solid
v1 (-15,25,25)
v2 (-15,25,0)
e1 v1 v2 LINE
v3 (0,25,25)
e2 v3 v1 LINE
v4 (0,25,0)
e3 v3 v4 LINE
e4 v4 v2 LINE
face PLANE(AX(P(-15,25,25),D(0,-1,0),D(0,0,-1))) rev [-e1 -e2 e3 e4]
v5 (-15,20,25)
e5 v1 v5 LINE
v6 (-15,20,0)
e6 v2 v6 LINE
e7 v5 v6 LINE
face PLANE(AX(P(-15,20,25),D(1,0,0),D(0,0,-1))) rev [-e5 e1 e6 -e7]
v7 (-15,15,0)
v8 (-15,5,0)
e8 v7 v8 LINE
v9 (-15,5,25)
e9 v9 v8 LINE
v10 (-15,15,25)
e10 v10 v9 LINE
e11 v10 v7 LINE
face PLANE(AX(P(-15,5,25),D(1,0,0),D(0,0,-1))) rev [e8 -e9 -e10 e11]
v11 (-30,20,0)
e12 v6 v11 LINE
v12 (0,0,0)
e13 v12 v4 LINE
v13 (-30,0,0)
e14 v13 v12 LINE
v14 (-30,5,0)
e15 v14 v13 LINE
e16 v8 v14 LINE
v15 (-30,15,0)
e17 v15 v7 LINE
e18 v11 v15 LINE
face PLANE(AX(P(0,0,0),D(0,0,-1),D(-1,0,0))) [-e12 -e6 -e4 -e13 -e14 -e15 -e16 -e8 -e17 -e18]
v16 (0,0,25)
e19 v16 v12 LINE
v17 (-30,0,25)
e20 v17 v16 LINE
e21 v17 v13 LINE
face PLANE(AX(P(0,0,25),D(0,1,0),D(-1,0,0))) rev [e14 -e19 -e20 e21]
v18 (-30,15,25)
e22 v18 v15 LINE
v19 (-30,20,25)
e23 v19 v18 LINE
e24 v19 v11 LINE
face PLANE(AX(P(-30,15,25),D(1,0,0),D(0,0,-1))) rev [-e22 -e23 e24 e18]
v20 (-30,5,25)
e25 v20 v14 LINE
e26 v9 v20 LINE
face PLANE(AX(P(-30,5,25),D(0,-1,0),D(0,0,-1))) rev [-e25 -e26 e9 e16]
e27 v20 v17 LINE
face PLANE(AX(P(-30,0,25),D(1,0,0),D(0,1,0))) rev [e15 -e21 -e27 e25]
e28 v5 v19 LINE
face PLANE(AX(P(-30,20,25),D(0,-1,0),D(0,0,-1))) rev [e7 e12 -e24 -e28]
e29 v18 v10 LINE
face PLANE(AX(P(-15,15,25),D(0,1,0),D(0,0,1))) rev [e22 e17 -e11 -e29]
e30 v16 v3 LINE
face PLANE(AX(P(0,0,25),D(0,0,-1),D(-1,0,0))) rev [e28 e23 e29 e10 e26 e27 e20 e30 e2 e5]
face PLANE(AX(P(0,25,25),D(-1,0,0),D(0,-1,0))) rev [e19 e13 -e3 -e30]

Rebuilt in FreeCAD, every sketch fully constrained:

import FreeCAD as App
import Part
import Sketcher

V = App.Vector
Q = App.Units.Quantity

doc = App.newDocument("Part")
body = doc.addObject("PartDesign::Body", "Body")

# Sketch on XY plane
sketch1 = doc.addObject("Sketcher::SketchObject", "Sketch")
body.addObject(sketch1)
sketch1.AttachmentSupport = (doc.XY_Plane, [""])
sketch1.MapMode = "FlatFace"
sketch1.addGeometry([
    Part.LineSegment(V(-15, 20, 0), V(-30, 20, 0)),  # 0
    Part.LineSegment(V(-30, 20, 0), V(-30, 15, 0)),  # 1
    Part.LineSegment(V(-30, 15, 0), V(-15, 15, 0)),  # 2
    Part.LineSegment(V(-15, 15, 0), V(-15, 5, 0)),  # 3
    Part.LineSegment(V(-15, 5, 0), V(-30, 5, 0)),  # 4
    Part.LineSegment(V(-30, 5, 0), V(-30, 0, 0)),  # 5
    Part.LineSegment(V(-30, 0, 0), V(0, 0, 0)),  # 6
    Part.LineSegment(V(0, 0, 0), V(0, 25, 0)),  # 7
    Part.LineSegment(V(0, 25, 0), V(-15, 25, 0)),  # 8
    Part.LineSegment(V(-15, 25, 0), V(-15, 20, 0)),  # 9
], False)
sketch1.addConstraint([
    Sketcher.Constraint("Coincident", 0, 2, 1, 1),
    Sketcher.Constraint("Coincident", 1, 2, 2, 1),
    Sketcher.Constraint("Coincident", 2, 2, 3, 1),
    Sketcher.Constraint("Coincident", 3, 2, 4, 1),
    Sketcher.Constraint("Coincident", 4, 2, 5, 1),
    Sketcher.Constraint("Coincident", 5, 2, 6, 1),
    Sketcher.Constraint("Coincident", 6, 2, 7, 1),
    Sketcher.Constraint("Coincident", 7, 2, 8, 1),
    Sketcher.Constraint("Coincident", 8, 2, 9, 1),
    Sketcher.Constraint("Coincident", 9, 2, 0, 1),
    Sketcher.Constraint("Horizontal", 0),
    Sketcher.Constraint("Vertical", 1),
    Sketcher.Constraint("Horizontal", 2),
    Sketcher.Constraint("Vertical", 3),
    Sketcher.Constraint("Horizontal", 4),
    Sketcher.Constraint("Vertical", 5),
    Sketcher.Constraint("Horizontal", 6),
    Sketcher.Constraint("Vertical", 7),
    Sketcher.Constraint("Horizontal", 8),
    Sketcher.Constraint("Vertical", 9),
    Sketcher.Constraint("Coincident", 6, 2, -1, 1),
    Sketcher.Constraint("Vertical", 1, 2, 4, 2),
    Sketcher.Constraint("Vertical", 3, 2, 8, 2),
    Sketcher.Constraint("Equal", 4, 8),
    Sketcher.Constraint("Equal", 1, 5),
    Sketcher.Constraint("Equal", 5, 9),
    Sketcher.Constraint("DistanceX", 0, 2, 0, 1, Q("15 mm")),
    Sketcher.Constraint("DistanceY", 1, 2, 1, 1, Q("5 mm")),
    Sketcher.Constraint("DistanceY", 3, 2, 3, 1, Q("10 mm")),
])
pad1 = doc.addObject("PartDesign::Pad", "Pad")
body.addObject(pad1)
pad1.Profile = sketch1
pad1.Length = 25

doc.recompute()
